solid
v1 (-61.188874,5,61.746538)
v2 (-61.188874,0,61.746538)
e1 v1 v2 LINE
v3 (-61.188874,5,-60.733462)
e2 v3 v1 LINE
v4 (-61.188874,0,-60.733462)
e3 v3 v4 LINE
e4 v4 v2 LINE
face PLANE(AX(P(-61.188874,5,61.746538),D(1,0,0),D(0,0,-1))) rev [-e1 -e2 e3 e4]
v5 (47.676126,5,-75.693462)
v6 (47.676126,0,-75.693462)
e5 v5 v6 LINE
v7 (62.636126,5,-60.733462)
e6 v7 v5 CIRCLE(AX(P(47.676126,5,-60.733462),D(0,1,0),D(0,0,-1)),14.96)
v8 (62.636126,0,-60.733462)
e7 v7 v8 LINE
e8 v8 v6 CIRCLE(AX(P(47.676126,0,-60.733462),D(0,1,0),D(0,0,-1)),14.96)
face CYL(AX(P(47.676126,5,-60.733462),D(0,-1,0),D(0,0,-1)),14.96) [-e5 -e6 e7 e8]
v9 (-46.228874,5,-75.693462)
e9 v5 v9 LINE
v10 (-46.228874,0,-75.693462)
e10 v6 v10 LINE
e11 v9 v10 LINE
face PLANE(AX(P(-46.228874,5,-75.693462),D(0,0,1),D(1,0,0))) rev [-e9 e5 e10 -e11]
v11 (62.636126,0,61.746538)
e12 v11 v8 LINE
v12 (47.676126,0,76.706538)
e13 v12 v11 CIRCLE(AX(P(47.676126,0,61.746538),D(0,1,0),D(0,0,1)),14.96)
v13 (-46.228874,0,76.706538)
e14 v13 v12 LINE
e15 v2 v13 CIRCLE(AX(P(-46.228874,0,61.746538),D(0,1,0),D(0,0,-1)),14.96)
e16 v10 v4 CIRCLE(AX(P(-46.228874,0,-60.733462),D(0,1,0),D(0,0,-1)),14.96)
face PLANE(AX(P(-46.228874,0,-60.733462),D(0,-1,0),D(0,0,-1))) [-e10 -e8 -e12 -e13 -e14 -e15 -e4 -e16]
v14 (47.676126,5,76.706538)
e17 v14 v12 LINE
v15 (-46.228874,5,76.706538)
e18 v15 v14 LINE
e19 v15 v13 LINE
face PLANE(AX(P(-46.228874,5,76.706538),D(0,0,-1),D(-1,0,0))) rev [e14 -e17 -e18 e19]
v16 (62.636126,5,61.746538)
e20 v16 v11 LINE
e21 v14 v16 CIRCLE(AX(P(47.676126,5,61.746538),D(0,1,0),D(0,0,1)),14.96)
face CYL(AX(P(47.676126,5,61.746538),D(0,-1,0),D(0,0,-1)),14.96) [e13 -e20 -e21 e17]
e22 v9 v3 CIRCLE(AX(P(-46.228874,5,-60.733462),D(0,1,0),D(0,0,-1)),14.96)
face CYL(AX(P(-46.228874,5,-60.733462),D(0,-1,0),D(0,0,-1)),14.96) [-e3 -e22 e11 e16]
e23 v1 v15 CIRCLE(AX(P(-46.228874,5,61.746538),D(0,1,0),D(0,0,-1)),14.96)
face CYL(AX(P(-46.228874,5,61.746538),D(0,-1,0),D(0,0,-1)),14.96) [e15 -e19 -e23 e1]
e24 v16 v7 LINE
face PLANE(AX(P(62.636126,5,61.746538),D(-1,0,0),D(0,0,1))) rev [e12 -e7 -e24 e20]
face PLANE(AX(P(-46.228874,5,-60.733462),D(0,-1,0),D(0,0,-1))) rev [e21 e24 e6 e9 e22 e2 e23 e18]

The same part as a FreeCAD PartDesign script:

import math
import FreeCAD as App
import Part
import Sketcher

V = App.Vector

doc = App.newDocument("Part")
body = doc.addObject("PartDesign::Body", "Body")

sketch1 = body.newObject("Sketcher::SketchObject", "Sketch")
sketch1.AttachmentSupport = (doc.getObject("XZ_Plane"), [""])
sketch1.MapMode = "FlatFace"
sketch1.addGeometry([
    Part.LineSegment(V(-46, 77, 0), V(48, 77, 0)),
    Part.ArcOfCircle(Part.Circle(V(48, 62, 0), V(0, 0, 1), 15), math.radians(0), math.radians(90)),
    Part.LineSegment(V(63, 62, 0), V(63, -61, 0)),
    Part.ArcOfCircle(Part.Circle(V(48, -61, 0), V(0, 0, 1), 15), math.radians(-90), math.radians(0)),
    Part.LineSegment(V(48, -76, 0), V(-46, -76, 0)),
    Part.ArcOfCircle(Part.Circle(V(-46, -61, 0), V(0, 0, 1), 15), math.radians(180), math.radians(270)),
    Part.LineSegment(V(-61, -61, 0), V(-61, 62, 0)),
    Part.ArcOfCircle(Part.Circle(V(-46, 62, 0), V(0, 0, 1), 15), math.radians(90), math.radians(180)),
], False)
sketch1.addConstraint([
    Sketcher.Constraint("Tangent", 0, 2, 1, 2),
    Sketcher.Constraint("Tangent", 1, 1, 2, 1),
    Sketcher.Constraint("Tangent", 2, 2, 3, 2),
    Sketcher.Constraint("Tangent", 3, 1, 4, 1),
    Sketcher.Constraint("Tangent", 4, 2, 5, 2),
    Sketcher.Constraint("Tangent", 5, 1, 6, 1),
    Sketcher.Constraint("Tangent", 6, 2, 7, 2),
    Sketcher.Constraint("Tangent", 7, 1, 0, 1),
    Sketcher.Constraint("Horizontal", 0),
    Sketcher.Constraint("Vertical", 2),
    Sketcher.Constraint("Horizontal", 4),
    Sketcher.Constraint("Vertical", 6),
    Sketcher.Constraint("Equal", 1, 3),
    Sketcher.Constraint("Equal", 3, 5),
    Sketcher.Constraint("Equal", 5, 7),
    Sketcher.Constraint("Radius", 1, 14.96),
    Sketcher.Constraint("DistanceY", 2, 2, 2, 1, 122.48),
    Sketcher.Constraint("DistanceX", 0, 1, 0, 2, 93.905),
    Sketcher.Constraint("DistanceY", -1, 1, 1, 3, 61.746538),
    Sketcher.Constraint("DistanceX", -1, 1, 1, 3, 47.676126),
])
pad1 = body.newObject("PartDesign::Pad", "Pad")
pad1.Profile = sketch1
pad1.Length = 5
pad1.Reversed = True

doc.recompute()
